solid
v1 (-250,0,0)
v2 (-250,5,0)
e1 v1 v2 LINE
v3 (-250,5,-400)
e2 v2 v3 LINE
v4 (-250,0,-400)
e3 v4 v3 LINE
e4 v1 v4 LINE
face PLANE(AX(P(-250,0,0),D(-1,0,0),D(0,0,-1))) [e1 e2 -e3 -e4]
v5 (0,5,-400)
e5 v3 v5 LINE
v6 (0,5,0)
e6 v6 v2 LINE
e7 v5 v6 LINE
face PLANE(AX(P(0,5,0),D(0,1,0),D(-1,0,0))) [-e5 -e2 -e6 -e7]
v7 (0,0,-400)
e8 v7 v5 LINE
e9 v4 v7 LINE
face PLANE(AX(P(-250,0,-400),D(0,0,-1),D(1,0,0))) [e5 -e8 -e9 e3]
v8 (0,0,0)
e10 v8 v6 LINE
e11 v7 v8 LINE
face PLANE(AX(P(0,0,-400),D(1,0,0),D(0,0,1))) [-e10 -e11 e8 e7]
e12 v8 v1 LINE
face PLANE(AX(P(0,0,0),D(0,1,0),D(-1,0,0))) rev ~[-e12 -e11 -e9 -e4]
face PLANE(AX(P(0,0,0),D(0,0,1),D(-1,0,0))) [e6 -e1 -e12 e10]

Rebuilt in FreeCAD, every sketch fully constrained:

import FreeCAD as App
import Part
import Sketcher
from FreeCAD import Vector
Q = App.Units.Quantity

doc = App.newDocument("Part")
body = doc.addObject("PartDesign::Body", "Body")

sketch1 = body.newObject("Sketcher::SketchObject", "Sketch")
sketch1.AttachmentSupport = (doc.getObject("XZ_Plane"), [""])
sketch1.MapMode = "FlatFace"
sketch1.addGeometry([
    Part.LineSegment(Vector(-250, 0, 0), Vector(0, 0, 0)),
    Part.LineSegment(Vector(0, 0, 0), Vector(0, -400, 0)),
    Part.LineSegment(Vector(0, -400, 0), Vector(-250, -400, 0)),
    Part.LineSegment(Vector(-250, -400, 0), Vector(-250, 0, 0)),
], False)
sketch1.addConstraint([
    Sketcher.Constraint("Coincident", 0, 2, 1, 1),
    Sketcher.Constraint("Coincident", 1, 2, 2, 1),
    Sketcher.Constraint("Coincident", 2, 2, 3, 1),
    Sketcher.Constraint("Coincident", 3, 2, 0, 1),
    Sketcher.Constraint("Horizontal", 0),
    Sketcher.Constraint("Vertical", 1),
    Sketcher.Constraint("Horizontal", 2),
    Sketcher.Constraint("Vertical", 3),
    Sketcher.Constraint("Coincident", 0, 2, -1, 1),
    Sketcher.Constraint("DistanceX", 0, 1, 0, 2, Q("250 mm")),
    Sketcher.Constraint("DistanceY", 1, 2, 1, 1, Q("400 mm")),
])
pad1 = body.newObject("PartDesign::Pad", "Pad")
pad1.Profile = sketch1
pad1.Length = 5
pad1.Reversed = True

doc.recompute()
